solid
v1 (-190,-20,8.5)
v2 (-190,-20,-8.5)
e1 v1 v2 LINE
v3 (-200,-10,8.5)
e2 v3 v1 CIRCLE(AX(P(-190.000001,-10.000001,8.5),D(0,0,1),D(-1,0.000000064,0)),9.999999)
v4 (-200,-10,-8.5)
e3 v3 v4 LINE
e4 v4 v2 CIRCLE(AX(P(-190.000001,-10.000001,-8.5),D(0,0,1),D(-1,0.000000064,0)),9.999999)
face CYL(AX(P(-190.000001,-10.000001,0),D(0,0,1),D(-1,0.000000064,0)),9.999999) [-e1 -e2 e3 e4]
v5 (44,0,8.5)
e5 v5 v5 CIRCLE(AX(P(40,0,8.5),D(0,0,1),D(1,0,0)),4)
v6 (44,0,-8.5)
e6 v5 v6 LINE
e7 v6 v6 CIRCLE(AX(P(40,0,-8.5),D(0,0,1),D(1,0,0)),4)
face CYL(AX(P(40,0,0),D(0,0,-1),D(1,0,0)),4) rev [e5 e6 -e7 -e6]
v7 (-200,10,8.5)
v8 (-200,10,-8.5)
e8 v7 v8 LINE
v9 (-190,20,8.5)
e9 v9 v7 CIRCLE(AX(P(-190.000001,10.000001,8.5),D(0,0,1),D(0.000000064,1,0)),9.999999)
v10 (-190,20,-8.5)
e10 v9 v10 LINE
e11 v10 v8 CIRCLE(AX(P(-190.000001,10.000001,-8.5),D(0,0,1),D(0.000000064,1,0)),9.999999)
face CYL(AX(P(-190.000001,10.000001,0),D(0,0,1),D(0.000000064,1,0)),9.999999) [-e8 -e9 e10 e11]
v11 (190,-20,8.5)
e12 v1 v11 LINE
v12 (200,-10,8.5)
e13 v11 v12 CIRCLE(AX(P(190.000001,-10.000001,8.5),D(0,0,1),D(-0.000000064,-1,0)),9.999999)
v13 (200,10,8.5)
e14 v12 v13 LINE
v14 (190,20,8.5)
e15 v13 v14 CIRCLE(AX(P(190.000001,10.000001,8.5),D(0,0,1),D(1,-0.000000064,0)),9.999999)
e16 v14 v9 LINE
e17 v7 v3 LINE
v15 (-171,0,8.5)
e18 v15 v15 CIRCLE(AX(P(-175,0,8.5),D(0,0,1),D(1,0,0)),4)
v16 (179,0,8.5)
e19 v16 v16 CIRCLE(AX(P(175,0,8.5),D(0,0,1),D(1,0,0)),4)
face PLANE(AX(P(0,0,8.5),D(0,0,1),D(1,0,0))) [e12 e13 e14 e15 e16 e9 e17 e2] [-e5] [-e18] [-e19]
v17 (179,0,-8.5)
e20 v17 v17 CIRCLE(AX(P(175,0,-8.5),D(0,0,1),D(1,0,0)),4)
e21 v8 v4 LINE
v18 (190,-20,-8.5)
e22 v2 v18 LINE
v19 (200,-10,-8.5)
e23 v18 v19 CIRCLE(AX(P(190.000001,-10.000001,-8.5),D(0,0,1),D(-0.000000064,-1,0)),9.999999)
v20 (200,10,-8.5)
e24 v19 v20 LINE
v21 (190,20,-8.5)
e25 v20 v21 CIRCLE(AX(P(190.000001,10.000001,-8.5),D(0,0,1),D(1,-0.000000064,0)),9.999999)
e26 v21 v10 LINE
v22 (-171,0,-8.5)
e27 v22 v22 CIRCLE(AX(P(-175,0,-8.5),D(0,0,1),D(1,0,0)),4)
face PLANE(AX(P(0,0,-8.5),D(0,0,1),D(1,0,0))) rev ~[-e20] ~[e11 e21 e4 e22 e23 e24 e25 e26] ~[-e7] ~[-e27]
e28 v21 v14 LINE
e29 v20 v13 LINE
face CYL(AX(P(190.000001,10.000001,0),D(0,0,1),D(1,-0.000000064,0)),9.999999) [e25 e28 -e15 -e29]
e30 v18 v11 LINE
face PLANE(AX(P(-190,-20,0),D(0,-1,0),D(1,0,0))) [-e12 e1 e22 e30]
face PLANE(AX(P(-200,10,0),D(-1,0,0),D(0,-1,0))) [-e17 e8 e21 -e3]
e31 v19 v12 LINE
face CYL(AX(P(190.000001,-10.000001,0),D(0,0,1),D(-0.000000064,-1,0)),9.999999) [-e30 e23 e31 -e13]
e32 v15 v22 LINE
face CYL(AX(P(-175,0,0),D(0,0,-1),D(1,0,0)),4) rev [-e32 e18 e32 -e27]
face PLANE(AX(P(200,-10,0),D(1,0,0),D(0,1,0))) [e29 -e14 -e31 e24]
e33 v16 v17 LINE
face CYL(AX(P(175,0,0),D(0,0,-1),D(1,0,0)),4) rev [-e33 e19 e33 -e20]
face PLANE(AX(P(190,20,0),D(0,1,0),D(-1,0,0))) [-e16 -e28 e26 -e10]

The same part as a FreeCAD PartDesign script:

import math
import FreeCAD as App
import Part
import Sketcher

V = App.Vector

doc = App.newDocument("Part")
body = doc.addObject("PartDesign::Body", "Body")

# Sketch on XY plane
sketch1 = body.newObject("Sketcher::SketchObject", "Sketch")
sketch1.AttachmentSupport = (doc.getObject("XY_Plane"), [""])
sketch1.MapMode = "FlatFace"
sketch1.addGeometry([
    Part.LineSegment(V(-190, -20, 0), V(190, -20, 0)),  # 0
    Part.ArcOfCircle(Part.Circle(V(190, -10, 0), V(0, 0, 1), 10), math.radians(-90), math.radians(0)),  # 1
    Part.LineSegment(V(200, -10, 0), V(200, 10, 0)),  # 2
    Part.ArcOfCircle(Part.Circle(V(190, 10, 0), V(0, 0, 1), 10), math.radians(0), math.radians(90)),  # 3
    Part.LineSegment(V(190, 20, 0), V(-190, 20, 0)),  # 4
    Part.ArcOfCircle(Part.Circle(V(-190, 10, 0), V(0, 0, 1), 10), math.radians(90), math.radians(180)),  # 5
    Part.LineSegment(V(-200, 10, 0), V(-200, -10, 0)),  # 6
    Part.ArcOfCircle(Part.Circle(V(-190, -10, 0), V(0, 0, 1), 10), math.radians(180), math.radians(270)),  # 7
    Part.Circle(V(-175, 0, 0), V(0, 0, 1), 4),  # 8
    Part.Circle(V(40, 0, 0), V(0, 0, 1), 4),  # 9
    Part.Circle(V(175, 0, 0), V(0, 0, 1), 4),  # 10
], False)
sketch1.addConstraint([
    Sketcher.Constraint("Tangent", 0, 2, 1, 1),
    Sketcher.Constraint("Tangent", 1, 2, 2, 1),
    Sketcher.Constraint("Tangent", 2, 2, 3, 1),
    Sketcher.Constraint("Tangent", 3, 2, 4, 1),
    Sketcher.Constraint("Tangent", 4, 2, 5, 1),
    Sketcher.Constraint("Tangent", 5, 2, 6, 1),
    Sketcher.Constraint("Tangent", 6, 2, 7, 1),
    Sketcher.Constraint("Tangent", 7, 2, 0, 1),
    Sketcher.Constraint("Horizontal", 0),
    Sketcher.Constraint("Vertical", 2),
    Sketcher.Constraint("Horizontal", 4),
    Sketcher.Constraint("Vertical", 6),
    Sketcher.Constraint("Equal", 1, 3),
    Sketcher.Constraint("Equal", 3, 5),
    Sketcher.Constraint("Equal", 5, 7),
    Sketcher.Constraint("Equal", 8, 9),
    Sketcher.Constraint("Equal", 9, 10),
    Sketcher.Constraint("Symmetric", 1, 3, 5, 3, -1, 1),
    Sketcher.Constraint("Symmetric", 8, 3, 10, 3, -1, 1),
    Sketcher.Constraint("PointOnObject", 8, 3, -1),
    Sketcher.Constraint("PointOnObject", 9, 3, -1),
    Sketcher.Constraint("Diameter", 8, 8.0),
    Sketcher.Constraint("Radius", 1, 9.999999),
    Sketcher.Constraint("DistanceX", 0, 1, 0, 2, 380.0),
    Sketcher.Constraint("DistanceY", 2, 1, 2, 2, 20.0),
    Sketcher.Constraint("DistanceX", 8, 3, -1, 1, 175.0),
    Sketcher.Constraint("DistanceX", -1, 1, 9, 3, 40.0),
])
pad1 = body.newObject("PartDesign::Pad", "Pad")
pad1.Profile = sketch1
pad1.Length = 17
pad1.Midplane = True

doc.recompute()
